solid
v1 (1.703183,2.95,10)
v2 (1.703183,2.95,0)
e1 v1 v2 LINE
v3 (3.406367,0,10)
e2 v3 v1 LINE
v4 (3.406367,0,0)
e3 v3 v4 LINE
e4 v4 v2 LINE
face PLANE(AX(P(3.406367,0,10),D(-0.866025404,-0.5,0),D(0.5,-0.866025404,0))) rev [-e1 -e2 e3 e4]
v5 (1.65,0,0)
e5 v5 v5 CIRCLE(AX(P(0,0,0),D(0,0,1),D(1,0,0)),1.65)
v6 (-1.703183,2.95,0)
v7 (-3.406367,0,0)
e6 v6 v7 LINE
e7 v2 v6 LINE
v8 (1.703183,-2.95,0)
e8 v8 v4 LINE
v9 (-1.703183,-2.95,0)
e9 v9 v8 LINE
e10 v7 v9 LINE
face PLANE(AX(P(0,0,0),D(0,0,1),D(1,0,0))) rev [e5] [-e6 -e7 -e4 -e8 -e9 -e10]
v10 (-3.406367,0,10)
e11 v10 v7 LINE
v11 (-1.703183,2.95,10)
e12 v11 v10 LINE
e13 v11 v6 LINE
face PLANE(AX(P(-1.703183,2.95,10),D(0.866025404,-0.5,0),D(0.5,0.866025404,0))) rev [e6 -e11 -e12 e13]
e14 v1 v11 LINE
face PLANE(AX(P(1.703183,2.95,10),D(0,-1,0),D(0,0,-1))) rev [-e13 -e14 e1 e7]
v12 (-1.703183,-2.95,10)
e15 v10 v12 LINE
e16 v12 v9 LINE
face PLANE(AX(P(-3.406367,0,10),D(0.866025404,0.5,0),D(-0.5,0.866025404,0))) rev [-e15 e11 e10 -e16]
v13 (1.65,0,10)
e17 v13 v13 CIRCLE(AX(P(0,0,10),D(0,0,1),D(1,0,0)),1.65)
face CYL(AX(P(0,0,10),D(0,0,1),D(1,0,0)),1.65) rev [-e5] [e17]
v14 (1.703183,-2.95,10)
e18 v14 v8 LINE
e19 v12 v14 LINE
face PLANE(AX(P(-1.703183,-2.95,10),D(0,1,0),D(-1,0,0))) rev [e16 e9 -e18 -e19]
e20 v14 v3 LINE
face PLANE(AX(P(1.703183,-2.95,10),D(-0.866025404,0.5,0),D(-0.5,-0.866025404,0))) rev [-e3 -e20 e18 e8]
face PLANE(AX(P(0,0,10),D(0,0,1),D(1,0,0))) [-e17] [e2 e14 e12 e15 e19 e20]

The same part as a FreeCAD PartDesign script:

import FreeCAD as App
import Part
import Sketcher
Q = App.Units.Quantity

doc = App.newDocument("Part")
body = doc.addObject("PartDesign::Body", "Body")

sketch1 = doc.addObject("Sketcher::SketchObject", "Sketch")
body.addObject(sketch1)
sketch1.AttachmentSupport = (doc.XY_Plane, [""])
sketch1.MapMode = "FlatFace"
sketch1.addGeometry(Part.LineSegment(App.Vector(1.7, 3, 0), App.Vector(-1.7, 3, 0)), False)
sketch1.addGeometry(Part.LineSegment(App.Vector(-1.7, 3, 0), App.Vector(-3.4, 0, 0)), False)
sketch1.addGeometry(Part.LineSegment(App.Vector(-3.4, 0, 0), App.Vector(-1.7, -3, 0)), False)
sketch1.addGeometry(Part.LineSegment(App.Vector(-1.7, -3, 0), App.Vector(1.7, -3, 0)), False)
sketch1.addGeometry(Part.LineSegment(App.Vector(1.7, -3, 0), App.Vector(3.4, 0, 0)), False)
sketch1.addGeometry(Part.LineSegment(App.Vector(3.4, 0, 0), App.Vector(1.7, 3, 0)), False)
sketch1.addConstraint(Sketcher.Constraint("Coincident", 0, 2, 1, 1))
sketch1.addConstraint(Sketcher.Constraint("Coincident", 1, 2, 2, 1))
sketch1.addConstraint(Sketcher.Constraint("Coincident", 2, 2, 3, 1))
sketch1.addConstraint(Sketcher.Constraint("Coincident", 3, 2, 4, 1))
sketch1.addConstraint(Sketcher.Constraint("Coincident", 4, 2, 5, 1))
sketch1.addConstraint(Sketcher.Constraint("Coincident", 5, 2, 0, 1))
sketch1.addConstraint(Sketcher.Constraint("Horizontal", 0))
sketch1.addConstraint(Sketcher.Constraint("Horizontal", 3))
sketch1.addConstraint(Sketcher.Constraint("Symmetric", 0, 2, 3, 2, -1, 1))
sketch1.addConstraint(Sketcher.Constraint("Symmetric", 1, 2, 4, 2, -1, 1))
sketch1.addConstraint(Sketcher.Constraint("PointOnObject", 1, 2, -1))
sketch1.addConstraint(Sketcher.Constraint("Parallel", 2, 5))
sketch1.addConstraint(Sketcher.Constraint("Vertical", 0, 2, 2, 2))
sketch1.addConstraint(Sketcher.Constraint("Angle", 1, Q("-120 deg")))
sketch1.addConstraint(Sketcher.Constraint("DistanceY", 2, 2, 0, 2, Q("5.9 mm")))
sketch1.addConstraint(Sketcher.Constraint("DistanceX", 0, 2, 0, 1, Q("3.406367 mm")))
pad1 = doc.addObject("PartDesign::Pad", "Pad")
body.addObject(pad1)
pad1.Profile = sketch1
pad1.Length = 10

sketch2 = doc.addObject("Sketcher::SketchObject", "Sketch001")
body.addObject(sketch2)
sketch2.AttachmentSupport = (doc.XY_Plane, [""])
sketch2.MapMode = "FlatFace"
sketch2.AttachmentOffset = App.Placement(App.Vector(0, 0, 10), App.Rotation())
sketch2.addGeometry(Part.Circle(App.Vector(0, 0, 0), App.Vector(0, 0, 1), 1.6), False)
sketch2.addConstraint(Sketcher.Constraint("Coincident", 0, 3, -1, 1))
sketch2.addConstraint(Sketcher.Constraint("Diameter", 0, Q("3.3 mm")))
doc.recompute()
hole = doc.addObject("PartDesign::Hole", "Hole")
body.addObject(hole)
hole.Profile = sketch2
hole.ThreadType = "None"
hole.Diameter = 3.3
hole.DepthType = "ThroughAll"

doc.recompute()
